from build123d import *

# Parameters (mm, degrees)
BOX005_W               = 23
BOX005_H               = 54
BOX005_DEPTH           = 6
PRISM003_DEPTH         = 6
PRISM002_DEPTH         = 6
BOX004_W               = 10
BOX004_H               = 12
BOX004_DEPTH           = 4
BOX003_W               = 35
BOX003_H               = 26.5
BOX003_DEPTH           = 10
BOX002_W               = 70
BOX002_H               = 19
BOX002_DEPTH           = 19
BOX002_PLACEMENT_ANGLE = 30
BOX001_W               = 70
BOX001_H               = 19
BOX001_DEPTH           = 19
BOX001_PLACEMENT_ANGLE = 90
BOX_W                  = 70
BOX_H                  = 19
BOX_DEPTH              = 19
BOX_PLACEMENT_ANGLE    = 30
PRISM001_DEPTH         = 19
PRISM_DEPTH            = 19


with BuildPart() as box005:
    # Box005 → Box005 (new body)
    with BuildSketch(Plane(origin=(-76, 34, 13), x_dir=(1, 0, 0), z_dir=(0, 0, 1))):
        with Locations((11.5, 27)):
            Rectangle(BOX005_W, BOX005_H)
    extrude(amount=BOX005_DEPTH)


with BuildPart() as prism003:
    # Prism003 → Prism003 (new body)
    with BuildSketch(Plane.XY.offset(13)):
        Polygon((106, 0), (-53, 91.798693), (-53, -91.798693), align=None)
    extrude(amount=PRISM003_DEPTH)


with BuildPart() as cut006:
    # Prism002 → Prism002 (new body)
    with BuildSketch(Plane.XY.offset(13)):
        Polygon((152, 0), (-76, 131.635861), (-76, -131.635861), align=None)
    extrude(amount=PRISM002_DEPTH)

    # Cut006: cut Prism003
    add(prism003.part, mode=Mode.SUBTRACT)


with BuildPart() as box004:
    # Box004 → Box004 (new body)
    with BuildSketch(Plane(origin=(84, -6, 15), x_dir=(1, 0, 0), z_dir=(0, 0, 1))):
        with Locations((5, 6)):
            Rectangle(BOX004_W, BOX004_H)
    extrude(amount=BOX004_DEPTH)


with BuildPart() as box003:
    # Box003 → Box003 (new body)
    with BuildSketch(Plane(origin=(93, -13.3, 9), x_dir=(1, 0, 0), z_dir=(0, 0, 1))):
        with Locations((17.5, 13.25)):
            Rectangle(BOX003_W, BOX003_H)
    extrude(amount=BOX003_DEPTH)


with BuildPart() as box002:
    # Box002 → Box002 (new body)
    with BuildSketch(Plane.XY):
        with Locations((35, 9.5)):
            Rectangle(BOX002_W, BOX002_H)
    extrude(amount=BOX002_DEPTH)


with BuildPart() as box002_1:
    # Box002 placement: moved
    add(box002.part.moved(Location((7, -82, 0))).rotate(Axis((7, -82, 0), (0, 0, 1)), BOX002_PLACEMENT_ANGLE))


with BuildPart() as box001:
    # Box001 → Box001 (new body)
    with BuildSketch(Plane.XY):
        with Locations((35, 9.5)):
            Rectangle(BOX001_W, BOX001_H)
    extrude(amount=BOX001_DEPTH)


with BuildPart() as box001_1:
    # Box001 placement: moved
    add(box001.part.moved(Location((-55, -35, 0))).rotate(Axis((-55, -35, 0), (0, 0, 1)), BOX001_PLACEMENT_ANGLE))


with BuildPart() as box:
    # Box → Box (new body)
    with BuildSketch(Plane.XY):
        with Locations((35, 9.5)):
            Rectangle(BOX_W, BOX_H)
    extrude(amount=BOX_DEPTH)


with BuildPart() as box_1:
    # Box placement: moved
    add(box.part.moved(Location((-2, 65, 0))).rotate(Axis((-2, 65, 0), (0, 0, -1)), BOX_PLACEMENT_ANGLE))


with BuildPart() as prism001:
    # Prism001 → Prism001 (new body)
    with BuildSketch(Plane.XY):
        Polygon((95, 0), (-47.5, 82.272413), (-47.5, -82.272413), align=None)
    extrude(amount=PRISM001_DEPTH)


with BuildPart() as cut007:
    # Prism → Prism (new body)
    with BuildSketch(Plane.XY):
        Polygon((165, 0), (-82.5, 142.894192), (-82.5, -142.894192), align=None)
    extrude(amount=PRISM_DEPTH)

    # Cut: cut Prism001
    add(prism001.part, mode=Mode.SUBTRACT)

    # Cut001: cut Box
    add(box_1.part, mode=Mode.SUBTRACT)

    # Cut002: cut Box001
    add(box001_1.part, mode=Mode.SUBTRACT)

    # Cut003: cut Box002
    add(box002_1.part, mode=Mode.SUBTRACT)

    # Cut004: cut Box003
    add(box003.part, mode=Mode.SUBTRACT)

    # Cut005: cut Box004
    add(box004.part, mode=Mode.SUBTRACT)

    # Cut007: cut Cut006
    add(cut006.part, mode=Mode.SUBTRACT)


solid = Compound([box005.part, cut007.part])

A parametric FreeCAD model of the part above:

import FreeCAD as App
import Part
import Sketcher
from FreeCAD import Vector
Q = App.Units.Quantity

doc = App.newDocument("Part")
params = doc.addObject("Spreadsheet::Sheet", "Params")
for row, (alias, value) in enumerate([
    ("sketch1_width", "23 mm"),
    ("sketch1_height", "54 mm"),
    ("pad1_length", "6 mm"),
    ("pad2_length", "6 mm"),
    ("pad3_length", "6 mm"),
    ("sketch4_width", "10 mm"),
    ("sketch4_height", "12 mm"),
    ("pad4_length", "4 mm"),
    ("sketch5_width", "35 mm"),
    ("sketch5_height", "26.5 mm"),
    ("pad5_length", "10 mm"),
    ("sketch6_width", "70 mm"),
    ("sketch6_height", "19 mm"),
    ("pad6_length", "19 mm"),
    ("sketch7_width", "70 mm"),
    ("sketch7_height", "19 mm"),
    ("pad7_length", "19 mm"),
    ("sketch8_width", "70 mm"),
    ("sketch8_height", "19 mm"),
    ("pad8_length", "19 mm"),
    ("pad9_length", "19 mm"),
    ("pad10_length", "19 mm"),
], start=1):
    params.set(f"A{row}", alias)
    params.set(f"B{row}", "=" + value)
    params.setAlias(f"B{row}", alias)

body = doc.addObject("PartDesign::Body", "Body")

# Sketch on XY plane
sketch1 = body.newObject("Sketcher::SketchObject", "Sketch")
sketch1.AttachmentSupport = (doc.getObject("XY_Plane"), [""])
sketch1.MapMode = "FlatFace"
sketch1.AttachmentOffset = App.Placement(Vector(0, 0, 13), App.Rotation())
sketch1.addGeometry(Part.LineSegment(Vector(-76, 88, 0), Vector(-76, 34, 0)), False)
sketch1.addGeometry(Part.LineSegment(Vector(-76, 34, 0), Vector(-53, 34, 0)), False)
sketch1.addGeometry(Part.LineSegment(Vector(-53, 34, 0), Vector(-53, 88, 0)), False)
sketch1.addGeometry(Part.LineSegment(Vector(-53, 88, 0), Vector(-76, 88, 0)), False)
sketch1.addConstraint(Sketcher.Constraint("Coincident", 0, 2, 1, 1))
sketch1.addConstraint(Sketcher.Constraint("Coincident", 1, 2, 2, 1))
sketch1.addConstraint(Sketcher.Constraint("Coincident", 2, 2, 3, 1))
sketch1.addConstraint(Sketcher.Constraint("Coincident", 3, 2, 0, 1))
sketch1.addConstraint(Sketcher.Constraint("Vertical", 0))
sketch1.addConstraint(Sketcher.Constraint("Horizontal", 1))
sketch1.addConstraint(Sketcher.Constraint("Vertical", 2))
sketch1.addConstraint(Sketcher.Constraint("Horizontal", 3))
sketch1.addConstraint(Sketcher.Constraint("DistanceX", 1, 1, 1, 2, 23.0))
sketch1.addConstraint(Sketcher.Constraint("DistanceY", 0, 2, 0, 1, 54.0))
sketch1.addConstraint(Sketcher.Constraint("DistanceX", 0, 2, -1, 1, 76.0))
sketch1.addConstraint(Sketcher.Constraint("DistanceY", -1, 1, 0, 2, 34.0))
sketch1.setExpression("Constraints[8]", "Params.sketch1_width")
sketch1.setExpression("Constraints[9]", "Params.sketch1_height")
pad1 = body.newObject("PartDesign::Pad", "Pad")
pad1.Profile = sketch1
pad1.setExpression("Length", "Params.pad1_length")
body2 = doc.addObject("PartDesign::Body", "Body001")

# Sketch on XY plane
sketch2 = body2.newObject("Sketcher::SketchObject", "Sketch001")
sketch2.AttachmentSupport = (doc.getObject("XY_Plane001"), [""])
sketch2.MapMode = "FlatFace"
sketch2.AttachmentOffset = App.Placement(Vector(0, 0, 13), App.Rotation())
sketch2.addGeometry(Part.LineSegment(Vector(106, 0, 0), Vector(-53, 92, 0)), False)
sketch2.addGeometry(Part.LineSegment(Vector(-53, 92, 0), Vector(-53, -92, 0)), False)
sketch2.addGeometry(Part.LineSegment(Vector(-53, -92, 0), Vector(106, 0, 0)), False)
sketch2.addConstraint(Sketcher.Constraint("Coincident", 0, 2, 1, 1))
sketch2.addConstraint(Sketcher.Constraint("Coincident", 1, 2, 2, 1))
sketch2.addConstraint(Sketcher.Constraint("Coincident", 2, 2, 0, 1))
sketch2.addConstraint(Sketcher.Constraint("Vertical", 1))
sketch2.addConstraint(Sketcher.Constraint("PointOnObject", 2, 2, -1))
sketch2.addConstraint(Sketcher.Constraint("Equal", 0, 2))
sketch2.addConstraint(Sketcher.Constraint("Angle", 0, Q("150 deg")))
sketch2.addConstraint(Sketcher.Constraint("DistanceX", 0, 2, -1, 1, 53.0))
sketch2.addConstraint(Sketcher.Constraint("DistanceX", -1, 1, 2, 2, 106.0))
pad2 = body2.newObject("PartDesign::Pad", "Pad001")
pad2.Profile = sketch2
pad2.setExpression("Length", "Params.pad2_length")
body3 = doc.addObject("PartDesign::Body", "Body002")

# Sketch on XY plane
sketch3 = body3.newObject("Sketcher::SketchObject", "Sketch002")
sketch3.AttachmentSupport = (doc.getObject("XY_Plane002"), [""])
sketch3.MapMode = "FlatFace"
sketch3.AttachmentOffset = App.Placement(Vector(0, 0, 13), App.Rotation())
sketch3.addGeometry(Part.LineSegment(Vector(152, 0, 0), Vector(-76, 132, 0)), False)
sketch3.addGeometry(Part.LineSegment(Vector(-76, 132, 0), Vector(-76, -132, 0)), False)
sketch3.addGeometry(Part.LineSegment(Vector(-76, -132, 0), Vector(152, 0, 0)), False)
sketch3.addConstraint(Sketcher.Constraint("Coincident", 0, 2, 1, 1))
sketch3.addConstraint(Sketcher.Constraint("Coincident", 1, 2, 2, 1))
sketch3.addConstraint(Sketcher.Constraint("Coincident", 2, 2, 0, 1))
sketch3.addConstraint(Sketcher.Constraint("Vertical", 1))
sketch3.addConstraint(Sketcher.Constraint("PointOnObject", 2, 2, -1))
sketch3.addConstraint(Sketcher.Constraint("Equal", 0, 2))
sketch3.addConstraint(Sketcher.Constraint("Angle", 0, Q("150 deg")))
sketch3.addConstraint(Sketcher.Constraint("DistanceX", 0, 2, -1, 1, 76.0))
sketch3.addConstraint(Sketcher.Constraint("DistanceX", -1, 1, 2, 2, 152.0))
pad3 = body3.newObject("PartDesign::Pad", "Pad002")
pad3.Profile = sketch3
pad3.setExpression("Length", "Params.pad3_length")
doc.recompute()

boolean = body3.newObject("PartDesign::Boolean", "Boolean")
boolean.Type = "Cut"
boolean.addObjects([body2])
body4 = doc.addObject("PartDesign::Body", "Body003")

# Sketch on XY plane
sketch4 = body4.newObject("Sketcher::SketchObject", "Sketch003")
sketch4.AttachmentSupport = (doc.getObject("XY_Plane003"), [""])
sketch4.MapMode = "FlatFace"
sketch4.AttachmentOffset = App.Placement(Vector(0, 0, 15), App.Rotation())
sketch4.addGeometry(Part.LineSegment(Vector(84, 6, 0), Vector(84, -6, 0)), False)
sketch4.addGeometry(Part.LineSegment(Vector(84, -6, 0), Vector(94, -6, 0)), False)
sketch4.addGeometry(Part.LineSegment(Vector(94, -6, 0), Vector(94, 6, 0)), False)
sketch4.addGeometry(Part.LineSegment(Vector(94, 6, 0), Vector(84, 6, 0)), False)
sketch4.addConstraint(Sketcher.Constraint("Coincident", 0, 2, 1, 1))
sketch4.addConstraint(Sketcher.Constraint("Coincident", 1, 2, 2, 1))
sketch4.addConstraint(Sketcher.Constraint("Coincident", 2, 2, 3, 1))
sketch4.addConstraint(Sketcher.Constraint("Coincident", 3, 2, 0, 1))
sketch4.addConstraint(Sketcher.Constraint("Vertical", 0))
sketch4.addConstraint(Sketcher.Constraint("Horizontal", 1))
sketch4.addConstraint(Sketcher.Constraint("Vertical", 2))
sketch4.addConstraint(Sketcher.Constraint("Horizontal", 3))
sketch4.addConstraint(Sketcher.Constraint("DistanceX", 1, 1, 1, 2, 10.0))
sketch4.addConstraint(Sketcher.Constraint("DistanceY", 0, 2, 0, 1, 12.0))
sketch4.addConstraint(Sketcher.Constraint("DistanceX", -1, 1, 0, 2, 84.0))
sketch4.addConstraint(Sketcher.Constraint("DistanceY", 0, 2, -1, 1, 6.0))
sketch4.setExpression("Constraints[8]", "Params.sketch4_width")
sketch4.setExpression("Constraints[9]", "Params.sketch4_height")
pad4 = body4.newObject("PartDesign::Pad", "Pad003")
pad4.Profile = sketch4
pad4.setExpression("Length", "Params.pad4_length")
body5 = doc.addObject("PartDesign::Body", "Body004")

# Sketch on XY plane
sketch5 = body5.newObject("Sketcher::SketchObject", "Sketch004")
sketch5.AttachmentSupport = (doc.getObject("XY_Plane004"), [""])
sketch5.MapMode = "FlatFace"
sketch5.AttachmentOffset = App.Placement(Vector(0, 0, 9), App.Rotation())
sketch5.addGeometry(Part.LineSegment(Vector(93, 13, 0), Vector(93, -13, 0)), False)
sketch5.addGeometry(Part.LineSegment(Vector(93, -13, 0), Vector(128, -13, 0)), False)
sketch5.addGeometry(Part.LineSegment(Vector(128, -13, 0), Vector(128, 13, 0)), False)
sketch5.addGeometry(Part.LineSegment(Vector(128, 13, 0), Vector(93, 13, 0)), False)
sketch5.addConstraint(Sketcher.Constraint("Coincident", 0, 2, 1, 1))
sketch5.addConstraint(Sketcher.Constraint("Coincident", 1, 2, 2, 1))
sketch5.addConstraint(Sketcher.Constraint("Coincident", 2, 2, 3, 1))
sketch5.addConstraint(Sketcher.Constraint("Coincident", 3, 2, 0, 1))
sketch5.addConstraint(Sketcher.Constraint("Vertical", 0))
sketch5.addConstraint(Sketcher.Constraint("Horizontal", 1))
sketch5.addConstraint(Sketcher.Constraint("Vertical", 2))
sketch5.addConstraint(Sketcher.Constraint("Horizontal", 3))
sketch5.addConstraint(Sketcher.Constraint("DistanceX", 1, 1, 1, 2, 35.0))
sketch5.addConstraint(Sketcher.Constraint("DistanceY", 0, 2, 0, 1, 26.5))
sketch5.addConstraint(Sketcher.Constraint("DistanceX", -1, 1, 0, 2, 93.0))
sketch5.addConstraint(Sketcher.Constraint("DistanceY", 0, 2, -1, 1, 13.3))
sketch5.setExpression("Constraints[8]", "Params.sketch5_width")
sketch5.setExpression("Constraints[9]", "Params.sketch5_height")
pad5 = body5.newObject("PartDesign::Pad", "Pad004")
pad5.Profile = sketch5
pad5.setExpression("Length", "Params.pad5_length")
body6 = doc.addObject("PartDesign::Body", "Body005")

# Sketch on XY plane
sketch6 = body6.newObject("Sketcher::SketchObject", "Sketch005")
sketch6.AttachmentSupport = (doc.getObject("XY_Plane005"), [""])
sketch6.MapMode = "FlatFace"
sketch6.addGeometry(Part.LineSegment(Vector(0, 19, 0), Vector(0, 0, 0)), False)
sketch6.addGeometry(Part.LineSegment(Vector(0, 0, 0), Vector(70, 0, 0)), False)
sketch6.addGeometry(Part.LineSegment(Vector(70, 0, 0), Vector(70, 19, 0)), False)
sketch6.addGeometry(Part.LineSegment(Vector(70, 19, 0), Vector(0, 19, 0)), False)
sketch6.addConstraint(Sketcher.Constraint("Coincident", 0, 2, 1, 1))
sketch6.addConstraint(Sketcher.Constraint("Coincident", 1, 2, 2, 1))
sketch6.addConstraint(Sketcher.Constraint("Coincident", 2, 2, 3, 1))
sketch6.addConstraint(Sketcher.Constraint("Coincident", 3, 2, 0, 1))
sketch6.addConstraint(Sketcher.Constraint("Vertical", 0))
sketch6.addConstraint(Sketcher.Constraint("Horizontal", 1))
sketch6.addConstraint(Sketcher.Constraint("Vertical", 2))
sketch6.addConstraint(Sketcher.Constraint("Horizontal", 3))
sketch6.addConstraint(Sketcher.Constraint("Coincident", 0, 2, -1, 1))
sketch6.addConstraint(Sketcher.Constraint("DistanceX", 1, 1, 1, 2, 70.0))
sketch6.addConstraint(Sketcher.Constraint("DistanceY", 0, 2, 0, 1, 19.0))
sketch6.setExpression("Constraints[9]", "Params.sketch6_width")
sketch6.setExpression("Constraints[10]", "Params.sketch6_height")
pad6 = body6.newObject("PartDesign::Pad", "Pad005")
pad6.Profile = sketch6
pad6.setExpression("Length", "Params.pad6_length")
body7 = doc.addObject("PartDesign::Body", "Body006")
doc.recompute()

body6.Placement = App.Placement(Vector(7, -82, 0), App.Rotation(Vector(0, 0, 1), 30))
boolean2 = body7.newObject("PartDesign::Boolean", "Boolean001")
boolean2.Type = "Fuse"
boolean2.addObjects([body6])
body8 = doc.addObject("PartDesign::Body", "Body007")

# Sketch on XY plane
sketch7 = body8.newObject("Sketcher::SketchObject", "Sketch006")
sketch7.AttachmentSupport = (doc.getObject("XY_Plane007"), [""])
sketch7.MapMode = "FlatFace"
sketch7.addGeometry(Part.LineSegment(Vector(0, 19, 0), Vector(0, 0, 0)), False)
sketch7.addGeometry(Part.LineSegment(Vector(0, 0, 0), Vector(70, 0, 0)), False)
sketch7.addGeometry(Part.LineSegment(Vector(70, 0, 0), Vector(70, 19, 0)), False)
sketch7.addGeometry(Part.LineSegment(Vector(70, 19, 0), Vector(0, 19, 0)), False)
sketch7.addConstraint(Sketcher.Constraint("Coincident", 0, 2, 1, 1))
sketch7.addConstraint(Sketcher.Constraint("Coincident", 1, 2, 2, 1))
sketch7.addConstraint(Sketcher.Constraint("Coincident", 2, 2, 3, 1))
sketch7.addConstraint(Sketcher.Constraint("Coincident", 3, 2, 0, 1))
sketch7.addConstraint(Sketcher.Constraint("Vertical", 0))
sketch7.addConstraint(Sketcher.Constraint("Horizontal", 1))
sketch7.addConstraint(Sketcher.Constraint("Vertical", 2))
sketch7.addConstraint(Sketcher.Constraint("Horizontal", 3))
sketch7.addConstraint(Sketcher.Constraint("Coincident", 0, 2, -1, 1))
sketch7.addConstraint(Sketcher.Constraint("DistanceX", 1, 1, 1, 2, 70.0))
sketch7.addConstraint(Sketcher.Constraint("DistanceY", 0, 2, 0, 1, 19.0))
sketch7.setExpression("Constraints[9]", "Params.sketch7_width")
sketch7.setExpression("Constraints[10]", "Params.sketch7_height")
pad7 = body8.newObject("PartDesign::Pad", "Pad006")
pad7.Profile = sketch7
pad7.setExpression("Length", "Params.pad7_length")
body9 = doc.addObject("PartDesign::Body", "Body008")
doc.recompute()

body8.Placement = App.Placement(Vector(-55, -35, 0), App.Rotation(Vector(0, 0, 1), 90))
boolean3 = body9.newObject("PartDesign::Boolean", "Boolean002")
boolean3.Type = "Fuse"
boolean3.addObjects([body8])
body10 = doc.addObject("PartDesign::Body", "Body009")

# Sketch on XY plane
sketch8 = body10.newObject("Sketcher::SketchObject", "Sketch007")
sketch8.AttachmentSupport = (doc.getObject("XY_Plane009"), [""])
sketch8.MapMode = "FlatFace"
sketch8.addGeometry(Part.LineSegment(Vector(0, 19, 0), Vector(0, 0, 0)), False)
sketch8.addGeometry(Part.LineSegment(Vector(0, 0, 0), Vector(70, 0, 0)), False)
sketch8.addGeometry(Part.LineSegment(Vector(70, 0, 0), Vector(70, 19, 0)), False)
sketch8.addGeometry(Part.LineSegment(Vector(70, 19, 0), Vector(0, 19, 0)), False)
sketch8.addConstraint(Sketcher.Constraint("Coincident", 0, 2, 1, 1))
sketch8.addConstraint(Sketcher.Constraint("Coincident", 1, 2, 2, 1))
sketch8.addConstraint(Sketcher.Constraint("Coincident", 2, 2, 3, 1))
sketch8.addConstraint(Sketcher.Constraint("Coincident", 3, 2, 0, 1))
sketch8.addConstraint(Sketcher.Constraint("Vertical", 0))
sketch8.addConstraint(Sketcher.Constraint("Horizontal", 1))
sketch8.addConstraint(Sketcher.Constraint("Vertical", 2))
sketch8.addConstraint(Sketcher.Constraint("Horizontal", 3))
sketch8.addConstraint(Sketcher.Constraint("Coincident", 0, 2, -1, 1))
sketch8.addConstraint(Sketcher.Constraint("DistanceX", 1, 1, 1, 2, 70.0))
sketch8.addConstraint(Sketcher.Constraint("DistanceY", 0, 2, 0, 1, 19.0))
sketch8.setExpression("Constraints[9]", "Params.sketch8_width")
sketch8.setExpression("Constraints[10]", "Params.sketch8_height")
pad8 = body10.newObject("PartDesign::Pad", "Pad007")
pad8.Profile = sketch8
pad8.setExpression("Length", "Params.pad8_length")
body11 = doc.addObject("PartDesign::Body", "Body010")
doc.recompute()

body10.Placement = App.Placement(Vector(-2, 65, 0), App.Rotation(Vector(0, 0, -1), 30))
boolean4 = body11.newObject("PartDesign::Boolean", "Boolean003")
boolean4.Type = "Fuse"
boolean4.addObjects([body10])
body12 = doc.addObject("PartDesign::Body", "Body011")

# Sketch on XY plane
sketch9 = body12.newObject("Sketcher::SketchObject", "Sketch008")
sketch9.AttachmentSupport = (doc.getObject("XY_Plane011"), [""])
sketch9.MapMode = "FlatFace"
sketch9.addGeometry(Part.LineSegment(Vector(95, 0, 0), Vector(-48, 82, 0)), False)
sketch9.addGeometry(Part.LineSegment(Vector(-48, 82, 0), Vector(-48, -82, 0)), False)
sketch9.addGeometry(Part.LineSegment(Vector(-48, -82, 0), Vector(95, 0, 0)), False)
sketch9.addConstraint(Sketcher.Constraint("Coincident", 0, 2, 1, 1))
sketch9.addConstraint(Sketcher.Constraint("Coincident", 1, 2, 2, 1))
sketch9.addConstraint(Sketcher.Constraint("Coincident", 2, 2, 0, 1))
sketch9.addConstraint(Sketcher.Constraint("Vertical", 1))
sketch9.addConstraint(Sketcher.Constraint("PointOnObject", 2, 2, -1))
sketch9.addConstraint(Sketcher.Constraint("Equal", 0, 2))
sketch9.addConstraint(Sketcher.Constraint("Angle", 0, Q("150 deg")))
sketch9.addConstraint(Sketcher.Constraint("DistanceX", -1, 1, 2, 2, 95.0))
sketch9.addConstraint(Sketcher.Constraint("DistanceX", 0, 2, -1, 1, 47.5))
pad9 = body12.newObject("PartDesign::Pad", "Pad008")
pad9.Profile = sketch9
pad9.setExpression("Length", "Params.pad9_length")
body13 = doc.addObject("PartDesign::Body", "Body012")

# Sketch on XY plane
sketch10 = body13.newObject("Sketcher::SketchObject", "Sketch009")
sketch10.AttachmentSupport = (doc.getObject("XY_Plane012"), [""])
sketch10.MapMode = "FlatFace"
sketch10.addGeometry(Part.LineSegment(Vector(165, 0, 0), Vector(-82, 143, 0)), False)
sketch10.addGeometry(Part.LineSegment(Vector(-82, 143, 0), Vector(-82, -143, 0)), False)
sketch10.addGeometry(Part.LineSegment(Vector(-82, -143, 0), Vector(165, 0, 0)), False)
sketch10.addConstraint(Sketcher.Constraint("Coincident", 0, 2, 1, 1))
sketch10.addConstraint(Sketcher.Constraint("Coincident", 1, 2, 2, 1))
sketch10.addConstraint(Sketcher.Constraint("Coincident", 2, 2, 0, 1))
sketch10.addConstraint(Sketcher.Constraint("Vertical", 1))
sketch10.addConstraint(Sketcher.Constraint("PointOnObject", 2, 2, -1))
sketch10.addConstraint(Sketcher.Constraint("Equal", 0, 2))
sketch10.addConstraint(Sketcher.Constraint("Angle", 0, Q("150 deg")))
sketch10.addConstraint(Sketcher.Constraint("DistanceX", -1, 1, 2, 2, 165.0))
sketch10.addConstraint(Sketcher.Constraint("DistanceX", 0, 2, -1, 1, 82.5))
pad10 = body13.newObject("PartDesign::Pad", "Pad009")
pad10.Profile = sketch10
pad10.setExpression("Length", "Params.pad10_length")
doc.recompute()

boolean5 = body13.newObject("PartDesign::Boolean", "Boolean004")
boolean5.Type = "Cut"
boolean5.addObjects([body12])
doc.recompute()

boolean6 = body13.newObject("PartDesign::Boolean", "Boolean005")
boolean6.Type = "Cut"
boolean6.addObjects([body11])
doc.recompute()

boolean7 = body13.newObject("PartDesign::Boolean", "Boolean006")
boolean7.Type = "Cut"
boolean7.addObjects([body9])
doc.recompute()

boolean8 = body13.newObject("PartDesign::Boolean", "Boolean007")
boolean8.Type = "Cut"
boolean8.addObjects([body7])
doc.recompute()

boolean9 = body13.newObject("PartDesign::Boolean", "Boolean008")
boolean9.Type = "Cut"
boolean9.addObjects([body5])
doc.recompute()

boolean10 = body13.newObject("PartDesign::Boolean", "Boolean009")
boolean10.Type = "Cut"
boolean10.addObjects([body4])
doc.recompute()

boolean11 = body13.newObject("PartDesign::Boolean", "Boolean010")
boolean11.Type = "Cut"
boolean11.addObjects([body3])

doc.recompute()
